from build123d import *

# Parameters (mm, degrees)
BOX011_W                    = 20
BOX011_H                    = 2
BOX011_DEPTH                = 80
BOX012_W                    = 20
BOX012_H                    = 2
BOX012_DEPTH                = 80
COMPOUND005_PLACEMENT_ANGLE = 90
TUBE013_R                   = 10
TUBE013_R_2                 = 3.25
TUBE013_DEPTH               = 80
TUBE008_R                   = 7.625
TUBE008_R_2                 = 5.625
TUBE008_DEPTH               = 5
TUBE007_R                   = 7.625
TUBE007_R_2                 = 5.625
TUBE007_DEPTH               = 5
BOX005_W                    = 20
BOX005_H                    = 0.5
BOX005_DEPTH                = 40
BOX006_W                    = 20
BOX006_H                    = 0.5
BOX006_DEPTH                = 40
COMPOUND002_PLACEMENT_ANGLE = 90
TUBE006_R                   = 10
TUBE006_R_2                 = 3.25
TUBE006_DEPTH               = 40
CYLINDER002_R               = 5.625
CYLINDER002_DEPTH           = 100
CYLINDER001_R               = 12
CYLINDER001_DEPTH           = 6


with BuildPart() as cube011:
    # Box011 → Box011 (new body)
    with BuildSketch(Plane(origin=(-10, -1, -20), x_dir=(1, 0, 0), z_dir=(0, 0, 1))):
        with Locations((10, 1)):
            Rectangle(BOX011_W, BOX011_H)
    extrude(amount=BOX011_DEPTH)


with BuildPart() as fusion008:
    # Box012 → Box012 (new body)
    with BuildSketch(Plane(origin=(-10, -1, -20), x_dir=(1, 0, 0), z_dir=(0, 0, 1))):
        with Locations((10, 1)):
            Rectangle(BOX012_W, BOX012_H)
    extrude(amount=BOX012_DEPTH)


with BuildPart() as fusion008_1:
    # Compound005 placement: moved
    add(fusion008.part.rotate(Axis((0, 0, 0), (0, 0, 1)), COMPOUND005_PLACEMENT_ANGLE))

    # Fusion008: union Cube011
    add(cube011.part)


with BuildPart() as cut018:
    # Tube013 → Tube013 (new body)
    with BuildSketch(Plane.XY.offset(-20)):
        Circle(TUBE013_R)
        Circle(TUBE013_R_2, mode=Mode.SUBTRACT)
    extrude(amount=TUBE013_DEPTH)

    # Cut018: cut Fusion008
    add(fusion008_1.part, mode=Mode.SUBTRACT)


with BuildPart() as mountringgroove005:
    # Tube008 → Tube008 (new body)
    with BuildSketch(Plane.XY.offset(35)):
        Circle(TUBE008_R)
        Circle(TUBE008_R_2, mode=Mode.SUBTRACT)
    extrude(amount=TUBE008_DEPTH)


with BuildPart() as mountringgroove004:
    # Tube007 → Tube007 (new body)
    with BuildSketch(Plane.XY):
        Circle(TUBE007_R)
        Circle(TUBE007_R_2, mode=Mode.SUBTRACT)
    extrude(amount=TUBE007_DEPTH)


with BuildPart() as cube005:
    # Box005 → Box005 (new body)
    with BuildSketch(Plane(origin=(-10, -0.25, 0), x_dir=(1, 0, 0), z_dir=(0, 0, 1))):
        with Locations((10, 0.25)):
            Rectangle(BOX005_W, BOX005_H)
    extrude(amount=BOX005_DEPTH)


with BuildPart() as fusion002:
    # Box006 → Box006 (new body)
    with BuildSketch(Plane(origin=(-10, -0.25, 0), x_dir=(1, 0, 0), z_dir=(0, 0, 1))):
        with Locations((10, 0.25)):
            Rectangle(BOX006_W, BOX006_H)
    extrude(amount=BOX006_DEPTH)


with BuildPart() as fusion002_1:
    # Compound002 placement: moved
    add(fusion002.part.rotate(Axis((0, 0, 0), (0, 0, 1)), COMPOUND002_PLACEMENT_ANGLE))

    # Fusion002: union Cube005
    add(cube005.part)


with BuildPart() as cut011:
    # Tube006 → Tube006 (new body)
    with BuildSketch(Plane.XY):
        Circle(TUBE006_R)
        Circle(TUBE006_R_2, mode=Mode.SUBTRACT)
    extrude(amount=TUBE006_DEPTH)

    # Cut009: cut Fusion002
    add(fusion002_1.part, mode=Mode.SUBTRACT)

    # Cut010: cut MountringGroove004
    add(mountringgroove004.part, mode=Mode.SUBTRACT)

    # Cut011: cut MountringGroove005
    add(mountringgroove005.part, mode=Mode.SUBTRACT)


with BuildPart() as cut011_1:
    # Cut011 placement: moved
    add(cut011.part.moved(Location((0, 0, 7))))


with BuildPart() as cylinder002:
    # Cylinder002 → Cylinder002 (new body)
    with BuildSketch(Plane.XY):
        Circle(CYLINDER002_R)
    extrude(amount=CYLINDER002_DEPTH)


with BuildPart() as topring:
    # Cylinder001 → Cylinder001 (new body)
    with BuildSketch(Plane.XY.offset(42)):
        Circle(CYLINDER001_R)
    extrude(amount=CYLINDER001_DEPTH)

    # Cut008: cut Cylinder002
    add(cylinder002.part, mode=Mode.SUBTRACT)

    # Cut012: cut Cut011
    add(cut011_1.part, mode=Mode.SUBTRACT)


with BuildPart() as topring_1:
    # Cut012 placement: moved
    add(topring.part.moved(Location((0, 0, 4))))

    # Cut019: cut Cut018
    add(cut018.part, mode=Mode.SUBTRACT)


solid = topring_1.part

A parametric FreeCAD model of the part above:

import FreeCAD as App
import Part
import Sketcher
from FreeCAD import Vector


def add_polygon(sketch, points):
    """Adds a closed chain of lines whose ends are joined by coincident constraints."""
    first, n = sketch.GeometryCount, len(points)
    for a, b in zip(points, points[1:] + points[:1]):
        sketch.addGeometry(Part.LineSegment(App.Vector(*a, 0), App.Vector(*b, 0)), False)
    for i in range(n):
        sketch.addConstraint(Sketcher.Constraint("Coincident", first + i, 2, first + (i + 1) % n, 1))

doc = App.newDocument("Part")
body = doc.addObject("PartDesign::Body", "Body")

# Sketch on XY plane
sketch1 = body.newObject("Sketcher::SketchObject", "Sketch")
sketch1.AttachmentSupport = (doc.getObject("XY_Plane"), [""])
sketch1.MapMode = "FlatFace"
sketch1.AttachmentOffset = App.Placement(Vector(0, 0, -20), App.Rotation())
add_polygon(sketch1, [(-10, 1), (-10, -1), (10, -1), (10, 1)])  # lines 0-3
sketch1.addConstraint([
    Sketcher.Constraint("Vertical", 0),
    Sketcher.Constraint("Horizontal", 1),
    Sketcher.Constraint("Vertical", 2),
    Sketcher.Constraint("Horizontal", 3),
    Sketcher.Constraint("Symmetric", 0, 2, 2, 2, -1, 1),
    Sketcher.Constraint("DistanceX", 1, 1, 1, 2, 20.0),
    Sketcher.Constraint("DistanceY", 0, 2, 0, 1, 2.0),
])
pad1 = body.newObject("PartDesign::Pad", "Pad")
pad1.Profile = sketch1
pad1.Length = 80
body2 = doc.addObject("PartDesign::Body", "Body001")

# Sketch on XY plane
sketch2 = body2.newObject("Sketcher::SketchObject", "Sketch001")
sketch2.AttachmentSupport = (doc.getObject("XY_Plane001"), [""])
sketch2.MapMode = "FlatFace"
sketch2.AttachmentOffset = App.Placement(Vector(0, 0, -20), App.Rotation())
add_polygon(sketch2, [(-10, 1), (-10, -1), (10, -1), (10, 1)])  # lines 0-3
sketch2.addConstraint([
    Sketcher.Constraint("Vertical", 0),
    Sketcher.Constraint("Horizontal", 1),
    Sketcher.Constraint("Vertical", 2),
    Sketcher.Constraint("Horizontal", 3),
    Sketcher.Constraint("Symmetric", 0, 2, 2, 2, -1, 1),
    Sketcher.Constraint("DistanceX", 1, 1, 1, 2, 20.0),
    Sketcher.Constraint("DistanceY", 0, 2, 0, 1, 2.0),
])
pad2 = body2.newObject("PartDesign::Pad", "Pad001")
pad2.Profile = sketch2
pad2.Length = 80
body3 = doc.addObject("PartDesign::Body", "Body002")
doc.recompute()

body2.Placement = App.Placement(Vector(0, 0, 0), App.Rotation(Vector(0, 0, 1), 90))
boolean = body3.newObject("PartDesign::Boolean", "Boolean")
boolean.Type = "Fuse"
boolean.addObjects([body2])
doc.recompute()

boolean2 = body3.newObject("PartDesign::Boolean", "Boolean001")
boolean2.Type = "Fuse"
boolean2.addObjects([body])
body4 = doc.addObject("PartDesign::Body", "Body003")
body4.AllowCompound = True

# Sketch on XY plane
sketch3 = body4.newObject("Sketcher::SketchObject", "Sketch002")
sketch3.AttachmentSupport = (doc.getObject("XY_Plane003"), [""])
sketch3.MapMode = "FlatFace"
sketch3.AttachmentOffset = App.Placement(Vector(0, 0, -20), App.Rotation())
sketch3.addGeometry([
    Part.Circle(Vector(0, 0, 0), Vector(0, 0, 1), 10),
    Part.Circle(Vector(0, 0, 0), Vector(0, 0, 1), 3.2),
], False)
sketch3.addConstraint([
    Sketcher.Constraint("Coincident", 0, 3, -1, 1),
    Sketcher.Constraint("Coincident", 1, 3, -1, 1),
    Sketcher.Constraint("Diameter", 0, 20.0),
    Sketcher.Constraint("Diameter", 1, 6.5),
])
pad3 = body4.newObject("PartDesign::Pad", "Pad002")
pad3.Profile = sketch3
pad3.Length = 80
doc.recompute()

boolean3 = body4.newObject("PartDesign::Boolean", "Boolean002")
boolean3.Type = "Cut"
boolean3.addObjects([body3])
body5 = doc.addObject("PartDesign::Body", "Body004")

# Sketch on XY plane
sketch4 = body5.newObject("Sketcher::SketchObject", "Sketch003")
sketch4.AttachmentSupport = (doc.getObject("XY_Plane004"), [""])
sketch4.MapMode = "FlatFace"
sketch4.AttachmentOffset = App.Placement(Vector(0, 0, 35), App.Rotation())
sketch4.addGeometry([
    Part.Circle(Vector(0, 0, 0), Vector(0, 0, 1), 8),
    Part.Circle(Vector(0, 0, 0), Vector(0, 0, 1), 6),
], False)
sketch4.addConstraint([
    Sketcher.Constraint("Coincident", 0, 3, -1, 1),
    Sketcher.Constraint("Coincident", 1, 3, -1, 1),
    Sketcher.Constraint("Diameter", 0, 15.25),
    Sketcher.Constraint("Diameter", 1, 11.25),
])
pad4 = body5.newObject("PartDesign::Pad", "Pad003")
pad4.Profile = sketch4
pad4.Length = 5
body6 = doc.addObject("PartDesign::Body", "Body005")

# Sketch on XY plane
sketch5 = body6.newObject("Sketcher::SketchObject", "Sketch004")
sketch5.AttachmentSupport = (doc.getObject("XY_Plane005"), [""])
sketch5.MapMode = "FlatFace"
sketch5.addGeometry([
    Part.Circle(Vector(0, 0, 0), Vector(0, 0, 1), 8),
    Part.Circle(Vector(0, 0, 0), Vector(0, 0, 1), 6),
], False)
sketch5.addConstraint([
    Sketcher.Constraint("Coincident", 0, 3, -1, 1),
    Sketcher.Constraint("Coincident", 1, 3, -1, 1),
    Sketcher.Constraint("Diameter", 0, 15.25),
    Sketcher.Constraint("Diameter", 1, 11.25),
])
pad5 = body6.newObject("PartDesign::Pad", "Pad004")
pad5.Profile = sketch5
pad5.Length = 5
body7 = doc.addObject("PartDesign::Body", "Body006")

# Sketch on XY plane
sketch6 = body7.newObject("Sketcher::SketchObject", "Sketch005")
sketch6.AttachmentSupport = (doc.getObject("XY_Plane006"), [""])
sketch6.MapMode = "FlatFace"
add_polygon(sketch6, [(-10, 0.2), (-10, -0.2), (10, -0.2), (10, 0.2)])  # lines 0-3
sketch6.addConstraint([
    Sketcher.Constraint("Vertical", 0),
    Sketcher.Constraint("Horizontal", 1),
    Sketcher.Constraint("Vertical", 2),
    Sketcher.Constraint("Horizontal", 3),
    Sketcher.Constraint("Symmetric", 0, 2, 2, 2, -1, 1),
    Sketcher.Constraint("DistanceX", 1, 1, 1, 2, 20.0),
    Sketcher.Constraint("DistanceY", 0, 2, 0, 1, 0.5),
])
pad6 = body7.newObject("PartDesign::Pad", "Pad005")
pad6.Profile = sketch6
pad6.Length = 40
body8 = doc.addObject("PartDesign::Body", "Body007")

# Sketch on XY plane
sketch7 = body8.newObject("Sketcher::SketchObject", "Sketch006")
sketch7.AttachmentSupport = (doc.getObject("XY_Plane007"), [""])
sketch7.MapMode = "FlatFace"
add_polygon(sketch7, [(-10, 0.2), (-10, -0.2), (10, -0.2), (10, 0.2)])  # lines 0-3
sketch7.addConstraint([
    Sketcher.Constraint("Vertical", 0),
    Sketcher.Constraint("Horizontal", 1),
    Sketcher.Constraint("Vertical", 2),
    Sketcher.Constraint("Horizontal", 3),
    Sketcher.Constraint("Symmetric", 0, 2, 2, 2, -1, 1),
    Sketcher.Constraint("DistanceX", 1, 1, 1, 2, 20.0),
    Sketcher.Constraint("DistanceY", 0, 2, 0, 1, 0.5),
])
pad7 = body8.newObject("PartDesign::Pad", "Pad006")
pad7.Profile = sketch7
pad7.Length = 40
body9 = doc.addObject("PartDesign::Body", "Body008")
doc.recompute()

body8.Placement = App.Placement(Vector(0, 0, 0), App.Rotation(Vector(0, 0, 1), 90))
boolean4 = body9.newObject("PartDesign::Boolean", "Boolean003")
boolean4.Type = "Fuse"
boolean4.addObjects([body8])
doc.recompute()

boolean5 = body9.newObject("PartDesign::Boolean", "Boolean004")
boolean5.Type = "Fuse"
boolean5.addObjects([body7])
body10 = doc.addObject("PartDesign::Body", "Body009")
body10.AllowCompound = True

# Sketch on XY plane
sketch8 = body10.newObject("Sketcher::SketchObject", "Sketch007")
sketch8.AttachmentSupport = (doc.getObject("XY_Plane009"), [""])
sketch8.MapMode = "FlatFace"
sketch8.addGeometry([
    Part.Circle(Vector(0, 0, 0), Vector(0, 0, 1), 10),
    Part.Circle(Vector(0, 0, 0), Vector(0, 0, 1), 3.2),
], False)
sketch8.addConstraint([
    Sketcher.Constraint("Coincident", 0, 3, -1, 1),
    Sketcher.Constraint("Coincident", 1, 3, -1, 1),
    Sketcher.Constraint("Diameter", 0, 20.0),
    Sketcher.Constraint("Diameter", 1, 6.5),
])
pad8 = body10.newObject("PartDesign::Pad", "Pad007")
pad8.Profile = sketch8
pad8.Length = 40
doc.recompute()

boolean6 = body10.newObject("PartDesign::Boolean", "Boolean005")
boolean6.Type = "Cut"
boolean6.addObjects([body9])
doc.recompute()

boolean7 = body10.newObject("PartDesign::Boolean", "Boolean006")
boolean7.Type = "Cut"
boolean7.addObjects([body6])
doc.recompute()

boolean8 = body10.newObject("PartDesign::Boolean", "Boolean007")
boolean8.Type = "Cut"
boolean8.addObjects([body5])
body11 = doc.addObject("PartDesign::Body", "Body010")
body11.AllowCompound = True
doc.recompute()

body10.Placement = App.Placement(Vector(0, 0, 7), App.Rotation(Vector(0, 0, 1), 0))
boolean9 = body11.newObject("PartDesign::Boolean", "Boolean008")
boolean9.Type = "Fuse"
boolean9.addObjects([body10])
body12 = doc.addObject("PartDesign::Body", "Body011")

# Sketch on XY plane
sketch9 = body12.newObject("Sketcher::SketchObject", "Sketch008")
sketch9.AttachmentSupport = (doc.getObject("XY_Plane011"), [""])
sketch9.MapMode = "FlatFace"
sketch9.addGeometry(Part.Circle(Vector(0, 0, 0), Vector(0, 0, 1), 6), False)
sketch9.addConstraint([
    Sketcher.Constraint("Coincident", 0, 3, -1, 1),
    Sketcher.Constraint("Diameter", 0, 11.25),
])
pad9 = body12.newObject("PartDesign::Pad", "Pad008")
pad9.Profile = sketch9
pad9.Length = 100
body13 = doc.addObject("PartDesign::Body", "Body012")

# Sketch on XY plane
sketch10 = body13.newObject("Sketcher::SketchObject", "Sketch009")
sketch10.AttachmentSupport = (doc.getObject("XY_Plane012"), [""])
sketch10.MapMode = "FlatFace"
sketch10.AttachmentOffset = App.Placement(Vector(0, 0, 42), App.Rotation())
sketch10.addGeometry(Part.Circle(Vector(0, 0, 0), Vector(0, 0, 1), 12), False)
sketch10.addConstraint([
    Sketcher.Constraint("Coincident", 0, 3, -1, 1),
    Sketcher.Constraint("Diameter", 0, 24.0),
])
pad10 = body13.newObject("PartDesign::Pad", "Pad009")
pad10.Profile = sketch10
pad10.Length = 6
doc.recompute()

boolean10 = body13.newObject("PartDesign::Boolean", "Boolean009")
boolean10.Type = "Cut"
boolean10.addObjects([body12])
doc.recompute()

boolean11 = body13.newObject("PartDesign::Boolean", "Boolean010")
boolean11.Type = "Cut"
boolean11.addObjects([body11])
body14 = doc.addObject("PartDesign::Body", "Body013")
doc.recompute()

body13.Placement = App.Placement(Vector(0, 0, 4), App.Rotation(Vector(0, 0, 1), 0))
boolean12 = body14.newObject("PartDesign::Boolean", "Boolean011")
boolean12.Type = "Fuse"
boolean12.addObjects([body13])
doc.recompute()

boolean13 = body14.newObject("PartDesign::Boolean", "Boolean012")
boolean13.Type = "Cut"
boolean13.addObjects([body4])

doc.recompute()
